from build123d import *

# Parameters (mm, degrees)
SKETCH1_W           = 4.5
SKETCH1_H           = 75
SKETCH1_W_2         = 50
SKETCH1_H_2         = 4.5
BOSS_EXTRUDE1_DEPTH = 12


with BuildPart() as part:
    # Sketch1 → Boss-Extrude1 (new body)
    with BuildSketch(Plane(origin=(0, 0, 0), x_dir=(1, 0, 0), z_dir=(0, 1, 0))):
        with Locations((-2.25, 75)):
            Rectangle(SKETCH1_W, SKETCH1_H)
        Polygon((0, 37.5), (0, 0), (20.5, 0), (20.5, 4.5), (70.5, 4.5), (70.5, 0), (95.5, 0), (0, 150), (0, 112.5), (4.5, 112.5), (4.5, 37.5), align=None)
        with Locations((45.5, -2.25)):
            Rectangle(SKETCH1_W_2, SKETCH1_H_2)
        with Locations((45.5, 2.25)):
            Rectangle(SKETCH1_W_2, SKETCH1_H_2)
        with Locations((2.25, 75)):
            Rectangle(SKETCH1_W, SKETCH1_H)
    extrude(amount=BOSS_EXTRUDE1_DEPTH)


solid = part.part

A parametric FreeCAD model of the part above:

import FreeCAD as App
import Part
import Sketcher

V = App.Vector


def add_polygon(sketch, points):
    """Adds a closed chain of lines whose ends are joined by coincident constraints."""
    first, n = sketch.GeometryCount, len(points)
    for a, b in zip(points, points[1:] + points[:1]):
        sketch.addGeometry(Part.LineSegment(App.Vector(*a, 0), App.Vector(*b, 0)), False)
    for i in range(n):
        sketch.addConstraint(Sketcher.Constraint("Coincident", first + i, 2, first + (i + 1) % n, 1))

doc = App.newDocument("Part")
body = doc.addObject("PartDesign::Body", "Body")

# Sketch on XZ plane
sketch1 = body.newObject("Sketcher::SketchObject", "Sketch")
sketch1.AttachmentSupport = (doc.getObject("XZ_Plane"), [""])
sketch1.MapMode = "FlatFace"
add_polygon(sketch1, [(-4.5, -112.5), (-4.5, -37.5), (0, -37.5), (0, 0), (20.5, 0), (20.5, 4.5), (70.5, 4.5), (70.5, 0), (95.5, 0), (0, -150), (0, -112.5)])  # lines 0-10
sketch1.addConstraint([
    Sketcher.Constraint("Vertical", 0),
    Sketcher.Constraint("Horizontal", 1),
    Sketcher.Constraint("Vertical", 2),
    Sketcher.Constraint("Horizontal", 3),
    Sketcher.Constraint("Vertical", 4),
    Sketcher.Constraint("Horizontal", 5),
    Sketcher.Constraint("Vertical", 6),
    Sketcher.Constraint("Horizontal", 7),
    Sketcher.Constraint("Vertical", 9),
    Sketcher.Constraint("Horizontal", 10),
    Sketcher.Constraint("Coincident", 2, 2, -1, 1),
    Sketcher.Constraint("PointOnObject", 6, 2, -1),
    Sketcher.Constraint("PointOnObject", 8, 2, -2),
    Sketcher.Constraint("Equal", 10, 4),
    Sketcher.Constraint("Equal", 2, 9),
    Sketcher.Constraint("DistanceX", 5, 1, 5, 2, 50.0),
    Sketcher.Constraint("DistanceX", 7, 1, 7, 2, 25.0),
    Sketcher.Constraint("DistanceY", 0, 1, 0, 2, 75.0),
    Sketcher.Constraint("DistanceX", 1, 1, 1, 2, 4.5),
    Sketcher.Constraint("DistanceX", 3, 1, 3, 2, 20.5),
    Sketcher.Constraint("DistanceY", 2, 1, 2, 2, 37.5),
])
pad1 = body.newObject("PartDesign::Pad", "Pad")
pad1.Profile = sketch1
pad1.Length = 12
pad1.Reversed = True

doc.recompute()
